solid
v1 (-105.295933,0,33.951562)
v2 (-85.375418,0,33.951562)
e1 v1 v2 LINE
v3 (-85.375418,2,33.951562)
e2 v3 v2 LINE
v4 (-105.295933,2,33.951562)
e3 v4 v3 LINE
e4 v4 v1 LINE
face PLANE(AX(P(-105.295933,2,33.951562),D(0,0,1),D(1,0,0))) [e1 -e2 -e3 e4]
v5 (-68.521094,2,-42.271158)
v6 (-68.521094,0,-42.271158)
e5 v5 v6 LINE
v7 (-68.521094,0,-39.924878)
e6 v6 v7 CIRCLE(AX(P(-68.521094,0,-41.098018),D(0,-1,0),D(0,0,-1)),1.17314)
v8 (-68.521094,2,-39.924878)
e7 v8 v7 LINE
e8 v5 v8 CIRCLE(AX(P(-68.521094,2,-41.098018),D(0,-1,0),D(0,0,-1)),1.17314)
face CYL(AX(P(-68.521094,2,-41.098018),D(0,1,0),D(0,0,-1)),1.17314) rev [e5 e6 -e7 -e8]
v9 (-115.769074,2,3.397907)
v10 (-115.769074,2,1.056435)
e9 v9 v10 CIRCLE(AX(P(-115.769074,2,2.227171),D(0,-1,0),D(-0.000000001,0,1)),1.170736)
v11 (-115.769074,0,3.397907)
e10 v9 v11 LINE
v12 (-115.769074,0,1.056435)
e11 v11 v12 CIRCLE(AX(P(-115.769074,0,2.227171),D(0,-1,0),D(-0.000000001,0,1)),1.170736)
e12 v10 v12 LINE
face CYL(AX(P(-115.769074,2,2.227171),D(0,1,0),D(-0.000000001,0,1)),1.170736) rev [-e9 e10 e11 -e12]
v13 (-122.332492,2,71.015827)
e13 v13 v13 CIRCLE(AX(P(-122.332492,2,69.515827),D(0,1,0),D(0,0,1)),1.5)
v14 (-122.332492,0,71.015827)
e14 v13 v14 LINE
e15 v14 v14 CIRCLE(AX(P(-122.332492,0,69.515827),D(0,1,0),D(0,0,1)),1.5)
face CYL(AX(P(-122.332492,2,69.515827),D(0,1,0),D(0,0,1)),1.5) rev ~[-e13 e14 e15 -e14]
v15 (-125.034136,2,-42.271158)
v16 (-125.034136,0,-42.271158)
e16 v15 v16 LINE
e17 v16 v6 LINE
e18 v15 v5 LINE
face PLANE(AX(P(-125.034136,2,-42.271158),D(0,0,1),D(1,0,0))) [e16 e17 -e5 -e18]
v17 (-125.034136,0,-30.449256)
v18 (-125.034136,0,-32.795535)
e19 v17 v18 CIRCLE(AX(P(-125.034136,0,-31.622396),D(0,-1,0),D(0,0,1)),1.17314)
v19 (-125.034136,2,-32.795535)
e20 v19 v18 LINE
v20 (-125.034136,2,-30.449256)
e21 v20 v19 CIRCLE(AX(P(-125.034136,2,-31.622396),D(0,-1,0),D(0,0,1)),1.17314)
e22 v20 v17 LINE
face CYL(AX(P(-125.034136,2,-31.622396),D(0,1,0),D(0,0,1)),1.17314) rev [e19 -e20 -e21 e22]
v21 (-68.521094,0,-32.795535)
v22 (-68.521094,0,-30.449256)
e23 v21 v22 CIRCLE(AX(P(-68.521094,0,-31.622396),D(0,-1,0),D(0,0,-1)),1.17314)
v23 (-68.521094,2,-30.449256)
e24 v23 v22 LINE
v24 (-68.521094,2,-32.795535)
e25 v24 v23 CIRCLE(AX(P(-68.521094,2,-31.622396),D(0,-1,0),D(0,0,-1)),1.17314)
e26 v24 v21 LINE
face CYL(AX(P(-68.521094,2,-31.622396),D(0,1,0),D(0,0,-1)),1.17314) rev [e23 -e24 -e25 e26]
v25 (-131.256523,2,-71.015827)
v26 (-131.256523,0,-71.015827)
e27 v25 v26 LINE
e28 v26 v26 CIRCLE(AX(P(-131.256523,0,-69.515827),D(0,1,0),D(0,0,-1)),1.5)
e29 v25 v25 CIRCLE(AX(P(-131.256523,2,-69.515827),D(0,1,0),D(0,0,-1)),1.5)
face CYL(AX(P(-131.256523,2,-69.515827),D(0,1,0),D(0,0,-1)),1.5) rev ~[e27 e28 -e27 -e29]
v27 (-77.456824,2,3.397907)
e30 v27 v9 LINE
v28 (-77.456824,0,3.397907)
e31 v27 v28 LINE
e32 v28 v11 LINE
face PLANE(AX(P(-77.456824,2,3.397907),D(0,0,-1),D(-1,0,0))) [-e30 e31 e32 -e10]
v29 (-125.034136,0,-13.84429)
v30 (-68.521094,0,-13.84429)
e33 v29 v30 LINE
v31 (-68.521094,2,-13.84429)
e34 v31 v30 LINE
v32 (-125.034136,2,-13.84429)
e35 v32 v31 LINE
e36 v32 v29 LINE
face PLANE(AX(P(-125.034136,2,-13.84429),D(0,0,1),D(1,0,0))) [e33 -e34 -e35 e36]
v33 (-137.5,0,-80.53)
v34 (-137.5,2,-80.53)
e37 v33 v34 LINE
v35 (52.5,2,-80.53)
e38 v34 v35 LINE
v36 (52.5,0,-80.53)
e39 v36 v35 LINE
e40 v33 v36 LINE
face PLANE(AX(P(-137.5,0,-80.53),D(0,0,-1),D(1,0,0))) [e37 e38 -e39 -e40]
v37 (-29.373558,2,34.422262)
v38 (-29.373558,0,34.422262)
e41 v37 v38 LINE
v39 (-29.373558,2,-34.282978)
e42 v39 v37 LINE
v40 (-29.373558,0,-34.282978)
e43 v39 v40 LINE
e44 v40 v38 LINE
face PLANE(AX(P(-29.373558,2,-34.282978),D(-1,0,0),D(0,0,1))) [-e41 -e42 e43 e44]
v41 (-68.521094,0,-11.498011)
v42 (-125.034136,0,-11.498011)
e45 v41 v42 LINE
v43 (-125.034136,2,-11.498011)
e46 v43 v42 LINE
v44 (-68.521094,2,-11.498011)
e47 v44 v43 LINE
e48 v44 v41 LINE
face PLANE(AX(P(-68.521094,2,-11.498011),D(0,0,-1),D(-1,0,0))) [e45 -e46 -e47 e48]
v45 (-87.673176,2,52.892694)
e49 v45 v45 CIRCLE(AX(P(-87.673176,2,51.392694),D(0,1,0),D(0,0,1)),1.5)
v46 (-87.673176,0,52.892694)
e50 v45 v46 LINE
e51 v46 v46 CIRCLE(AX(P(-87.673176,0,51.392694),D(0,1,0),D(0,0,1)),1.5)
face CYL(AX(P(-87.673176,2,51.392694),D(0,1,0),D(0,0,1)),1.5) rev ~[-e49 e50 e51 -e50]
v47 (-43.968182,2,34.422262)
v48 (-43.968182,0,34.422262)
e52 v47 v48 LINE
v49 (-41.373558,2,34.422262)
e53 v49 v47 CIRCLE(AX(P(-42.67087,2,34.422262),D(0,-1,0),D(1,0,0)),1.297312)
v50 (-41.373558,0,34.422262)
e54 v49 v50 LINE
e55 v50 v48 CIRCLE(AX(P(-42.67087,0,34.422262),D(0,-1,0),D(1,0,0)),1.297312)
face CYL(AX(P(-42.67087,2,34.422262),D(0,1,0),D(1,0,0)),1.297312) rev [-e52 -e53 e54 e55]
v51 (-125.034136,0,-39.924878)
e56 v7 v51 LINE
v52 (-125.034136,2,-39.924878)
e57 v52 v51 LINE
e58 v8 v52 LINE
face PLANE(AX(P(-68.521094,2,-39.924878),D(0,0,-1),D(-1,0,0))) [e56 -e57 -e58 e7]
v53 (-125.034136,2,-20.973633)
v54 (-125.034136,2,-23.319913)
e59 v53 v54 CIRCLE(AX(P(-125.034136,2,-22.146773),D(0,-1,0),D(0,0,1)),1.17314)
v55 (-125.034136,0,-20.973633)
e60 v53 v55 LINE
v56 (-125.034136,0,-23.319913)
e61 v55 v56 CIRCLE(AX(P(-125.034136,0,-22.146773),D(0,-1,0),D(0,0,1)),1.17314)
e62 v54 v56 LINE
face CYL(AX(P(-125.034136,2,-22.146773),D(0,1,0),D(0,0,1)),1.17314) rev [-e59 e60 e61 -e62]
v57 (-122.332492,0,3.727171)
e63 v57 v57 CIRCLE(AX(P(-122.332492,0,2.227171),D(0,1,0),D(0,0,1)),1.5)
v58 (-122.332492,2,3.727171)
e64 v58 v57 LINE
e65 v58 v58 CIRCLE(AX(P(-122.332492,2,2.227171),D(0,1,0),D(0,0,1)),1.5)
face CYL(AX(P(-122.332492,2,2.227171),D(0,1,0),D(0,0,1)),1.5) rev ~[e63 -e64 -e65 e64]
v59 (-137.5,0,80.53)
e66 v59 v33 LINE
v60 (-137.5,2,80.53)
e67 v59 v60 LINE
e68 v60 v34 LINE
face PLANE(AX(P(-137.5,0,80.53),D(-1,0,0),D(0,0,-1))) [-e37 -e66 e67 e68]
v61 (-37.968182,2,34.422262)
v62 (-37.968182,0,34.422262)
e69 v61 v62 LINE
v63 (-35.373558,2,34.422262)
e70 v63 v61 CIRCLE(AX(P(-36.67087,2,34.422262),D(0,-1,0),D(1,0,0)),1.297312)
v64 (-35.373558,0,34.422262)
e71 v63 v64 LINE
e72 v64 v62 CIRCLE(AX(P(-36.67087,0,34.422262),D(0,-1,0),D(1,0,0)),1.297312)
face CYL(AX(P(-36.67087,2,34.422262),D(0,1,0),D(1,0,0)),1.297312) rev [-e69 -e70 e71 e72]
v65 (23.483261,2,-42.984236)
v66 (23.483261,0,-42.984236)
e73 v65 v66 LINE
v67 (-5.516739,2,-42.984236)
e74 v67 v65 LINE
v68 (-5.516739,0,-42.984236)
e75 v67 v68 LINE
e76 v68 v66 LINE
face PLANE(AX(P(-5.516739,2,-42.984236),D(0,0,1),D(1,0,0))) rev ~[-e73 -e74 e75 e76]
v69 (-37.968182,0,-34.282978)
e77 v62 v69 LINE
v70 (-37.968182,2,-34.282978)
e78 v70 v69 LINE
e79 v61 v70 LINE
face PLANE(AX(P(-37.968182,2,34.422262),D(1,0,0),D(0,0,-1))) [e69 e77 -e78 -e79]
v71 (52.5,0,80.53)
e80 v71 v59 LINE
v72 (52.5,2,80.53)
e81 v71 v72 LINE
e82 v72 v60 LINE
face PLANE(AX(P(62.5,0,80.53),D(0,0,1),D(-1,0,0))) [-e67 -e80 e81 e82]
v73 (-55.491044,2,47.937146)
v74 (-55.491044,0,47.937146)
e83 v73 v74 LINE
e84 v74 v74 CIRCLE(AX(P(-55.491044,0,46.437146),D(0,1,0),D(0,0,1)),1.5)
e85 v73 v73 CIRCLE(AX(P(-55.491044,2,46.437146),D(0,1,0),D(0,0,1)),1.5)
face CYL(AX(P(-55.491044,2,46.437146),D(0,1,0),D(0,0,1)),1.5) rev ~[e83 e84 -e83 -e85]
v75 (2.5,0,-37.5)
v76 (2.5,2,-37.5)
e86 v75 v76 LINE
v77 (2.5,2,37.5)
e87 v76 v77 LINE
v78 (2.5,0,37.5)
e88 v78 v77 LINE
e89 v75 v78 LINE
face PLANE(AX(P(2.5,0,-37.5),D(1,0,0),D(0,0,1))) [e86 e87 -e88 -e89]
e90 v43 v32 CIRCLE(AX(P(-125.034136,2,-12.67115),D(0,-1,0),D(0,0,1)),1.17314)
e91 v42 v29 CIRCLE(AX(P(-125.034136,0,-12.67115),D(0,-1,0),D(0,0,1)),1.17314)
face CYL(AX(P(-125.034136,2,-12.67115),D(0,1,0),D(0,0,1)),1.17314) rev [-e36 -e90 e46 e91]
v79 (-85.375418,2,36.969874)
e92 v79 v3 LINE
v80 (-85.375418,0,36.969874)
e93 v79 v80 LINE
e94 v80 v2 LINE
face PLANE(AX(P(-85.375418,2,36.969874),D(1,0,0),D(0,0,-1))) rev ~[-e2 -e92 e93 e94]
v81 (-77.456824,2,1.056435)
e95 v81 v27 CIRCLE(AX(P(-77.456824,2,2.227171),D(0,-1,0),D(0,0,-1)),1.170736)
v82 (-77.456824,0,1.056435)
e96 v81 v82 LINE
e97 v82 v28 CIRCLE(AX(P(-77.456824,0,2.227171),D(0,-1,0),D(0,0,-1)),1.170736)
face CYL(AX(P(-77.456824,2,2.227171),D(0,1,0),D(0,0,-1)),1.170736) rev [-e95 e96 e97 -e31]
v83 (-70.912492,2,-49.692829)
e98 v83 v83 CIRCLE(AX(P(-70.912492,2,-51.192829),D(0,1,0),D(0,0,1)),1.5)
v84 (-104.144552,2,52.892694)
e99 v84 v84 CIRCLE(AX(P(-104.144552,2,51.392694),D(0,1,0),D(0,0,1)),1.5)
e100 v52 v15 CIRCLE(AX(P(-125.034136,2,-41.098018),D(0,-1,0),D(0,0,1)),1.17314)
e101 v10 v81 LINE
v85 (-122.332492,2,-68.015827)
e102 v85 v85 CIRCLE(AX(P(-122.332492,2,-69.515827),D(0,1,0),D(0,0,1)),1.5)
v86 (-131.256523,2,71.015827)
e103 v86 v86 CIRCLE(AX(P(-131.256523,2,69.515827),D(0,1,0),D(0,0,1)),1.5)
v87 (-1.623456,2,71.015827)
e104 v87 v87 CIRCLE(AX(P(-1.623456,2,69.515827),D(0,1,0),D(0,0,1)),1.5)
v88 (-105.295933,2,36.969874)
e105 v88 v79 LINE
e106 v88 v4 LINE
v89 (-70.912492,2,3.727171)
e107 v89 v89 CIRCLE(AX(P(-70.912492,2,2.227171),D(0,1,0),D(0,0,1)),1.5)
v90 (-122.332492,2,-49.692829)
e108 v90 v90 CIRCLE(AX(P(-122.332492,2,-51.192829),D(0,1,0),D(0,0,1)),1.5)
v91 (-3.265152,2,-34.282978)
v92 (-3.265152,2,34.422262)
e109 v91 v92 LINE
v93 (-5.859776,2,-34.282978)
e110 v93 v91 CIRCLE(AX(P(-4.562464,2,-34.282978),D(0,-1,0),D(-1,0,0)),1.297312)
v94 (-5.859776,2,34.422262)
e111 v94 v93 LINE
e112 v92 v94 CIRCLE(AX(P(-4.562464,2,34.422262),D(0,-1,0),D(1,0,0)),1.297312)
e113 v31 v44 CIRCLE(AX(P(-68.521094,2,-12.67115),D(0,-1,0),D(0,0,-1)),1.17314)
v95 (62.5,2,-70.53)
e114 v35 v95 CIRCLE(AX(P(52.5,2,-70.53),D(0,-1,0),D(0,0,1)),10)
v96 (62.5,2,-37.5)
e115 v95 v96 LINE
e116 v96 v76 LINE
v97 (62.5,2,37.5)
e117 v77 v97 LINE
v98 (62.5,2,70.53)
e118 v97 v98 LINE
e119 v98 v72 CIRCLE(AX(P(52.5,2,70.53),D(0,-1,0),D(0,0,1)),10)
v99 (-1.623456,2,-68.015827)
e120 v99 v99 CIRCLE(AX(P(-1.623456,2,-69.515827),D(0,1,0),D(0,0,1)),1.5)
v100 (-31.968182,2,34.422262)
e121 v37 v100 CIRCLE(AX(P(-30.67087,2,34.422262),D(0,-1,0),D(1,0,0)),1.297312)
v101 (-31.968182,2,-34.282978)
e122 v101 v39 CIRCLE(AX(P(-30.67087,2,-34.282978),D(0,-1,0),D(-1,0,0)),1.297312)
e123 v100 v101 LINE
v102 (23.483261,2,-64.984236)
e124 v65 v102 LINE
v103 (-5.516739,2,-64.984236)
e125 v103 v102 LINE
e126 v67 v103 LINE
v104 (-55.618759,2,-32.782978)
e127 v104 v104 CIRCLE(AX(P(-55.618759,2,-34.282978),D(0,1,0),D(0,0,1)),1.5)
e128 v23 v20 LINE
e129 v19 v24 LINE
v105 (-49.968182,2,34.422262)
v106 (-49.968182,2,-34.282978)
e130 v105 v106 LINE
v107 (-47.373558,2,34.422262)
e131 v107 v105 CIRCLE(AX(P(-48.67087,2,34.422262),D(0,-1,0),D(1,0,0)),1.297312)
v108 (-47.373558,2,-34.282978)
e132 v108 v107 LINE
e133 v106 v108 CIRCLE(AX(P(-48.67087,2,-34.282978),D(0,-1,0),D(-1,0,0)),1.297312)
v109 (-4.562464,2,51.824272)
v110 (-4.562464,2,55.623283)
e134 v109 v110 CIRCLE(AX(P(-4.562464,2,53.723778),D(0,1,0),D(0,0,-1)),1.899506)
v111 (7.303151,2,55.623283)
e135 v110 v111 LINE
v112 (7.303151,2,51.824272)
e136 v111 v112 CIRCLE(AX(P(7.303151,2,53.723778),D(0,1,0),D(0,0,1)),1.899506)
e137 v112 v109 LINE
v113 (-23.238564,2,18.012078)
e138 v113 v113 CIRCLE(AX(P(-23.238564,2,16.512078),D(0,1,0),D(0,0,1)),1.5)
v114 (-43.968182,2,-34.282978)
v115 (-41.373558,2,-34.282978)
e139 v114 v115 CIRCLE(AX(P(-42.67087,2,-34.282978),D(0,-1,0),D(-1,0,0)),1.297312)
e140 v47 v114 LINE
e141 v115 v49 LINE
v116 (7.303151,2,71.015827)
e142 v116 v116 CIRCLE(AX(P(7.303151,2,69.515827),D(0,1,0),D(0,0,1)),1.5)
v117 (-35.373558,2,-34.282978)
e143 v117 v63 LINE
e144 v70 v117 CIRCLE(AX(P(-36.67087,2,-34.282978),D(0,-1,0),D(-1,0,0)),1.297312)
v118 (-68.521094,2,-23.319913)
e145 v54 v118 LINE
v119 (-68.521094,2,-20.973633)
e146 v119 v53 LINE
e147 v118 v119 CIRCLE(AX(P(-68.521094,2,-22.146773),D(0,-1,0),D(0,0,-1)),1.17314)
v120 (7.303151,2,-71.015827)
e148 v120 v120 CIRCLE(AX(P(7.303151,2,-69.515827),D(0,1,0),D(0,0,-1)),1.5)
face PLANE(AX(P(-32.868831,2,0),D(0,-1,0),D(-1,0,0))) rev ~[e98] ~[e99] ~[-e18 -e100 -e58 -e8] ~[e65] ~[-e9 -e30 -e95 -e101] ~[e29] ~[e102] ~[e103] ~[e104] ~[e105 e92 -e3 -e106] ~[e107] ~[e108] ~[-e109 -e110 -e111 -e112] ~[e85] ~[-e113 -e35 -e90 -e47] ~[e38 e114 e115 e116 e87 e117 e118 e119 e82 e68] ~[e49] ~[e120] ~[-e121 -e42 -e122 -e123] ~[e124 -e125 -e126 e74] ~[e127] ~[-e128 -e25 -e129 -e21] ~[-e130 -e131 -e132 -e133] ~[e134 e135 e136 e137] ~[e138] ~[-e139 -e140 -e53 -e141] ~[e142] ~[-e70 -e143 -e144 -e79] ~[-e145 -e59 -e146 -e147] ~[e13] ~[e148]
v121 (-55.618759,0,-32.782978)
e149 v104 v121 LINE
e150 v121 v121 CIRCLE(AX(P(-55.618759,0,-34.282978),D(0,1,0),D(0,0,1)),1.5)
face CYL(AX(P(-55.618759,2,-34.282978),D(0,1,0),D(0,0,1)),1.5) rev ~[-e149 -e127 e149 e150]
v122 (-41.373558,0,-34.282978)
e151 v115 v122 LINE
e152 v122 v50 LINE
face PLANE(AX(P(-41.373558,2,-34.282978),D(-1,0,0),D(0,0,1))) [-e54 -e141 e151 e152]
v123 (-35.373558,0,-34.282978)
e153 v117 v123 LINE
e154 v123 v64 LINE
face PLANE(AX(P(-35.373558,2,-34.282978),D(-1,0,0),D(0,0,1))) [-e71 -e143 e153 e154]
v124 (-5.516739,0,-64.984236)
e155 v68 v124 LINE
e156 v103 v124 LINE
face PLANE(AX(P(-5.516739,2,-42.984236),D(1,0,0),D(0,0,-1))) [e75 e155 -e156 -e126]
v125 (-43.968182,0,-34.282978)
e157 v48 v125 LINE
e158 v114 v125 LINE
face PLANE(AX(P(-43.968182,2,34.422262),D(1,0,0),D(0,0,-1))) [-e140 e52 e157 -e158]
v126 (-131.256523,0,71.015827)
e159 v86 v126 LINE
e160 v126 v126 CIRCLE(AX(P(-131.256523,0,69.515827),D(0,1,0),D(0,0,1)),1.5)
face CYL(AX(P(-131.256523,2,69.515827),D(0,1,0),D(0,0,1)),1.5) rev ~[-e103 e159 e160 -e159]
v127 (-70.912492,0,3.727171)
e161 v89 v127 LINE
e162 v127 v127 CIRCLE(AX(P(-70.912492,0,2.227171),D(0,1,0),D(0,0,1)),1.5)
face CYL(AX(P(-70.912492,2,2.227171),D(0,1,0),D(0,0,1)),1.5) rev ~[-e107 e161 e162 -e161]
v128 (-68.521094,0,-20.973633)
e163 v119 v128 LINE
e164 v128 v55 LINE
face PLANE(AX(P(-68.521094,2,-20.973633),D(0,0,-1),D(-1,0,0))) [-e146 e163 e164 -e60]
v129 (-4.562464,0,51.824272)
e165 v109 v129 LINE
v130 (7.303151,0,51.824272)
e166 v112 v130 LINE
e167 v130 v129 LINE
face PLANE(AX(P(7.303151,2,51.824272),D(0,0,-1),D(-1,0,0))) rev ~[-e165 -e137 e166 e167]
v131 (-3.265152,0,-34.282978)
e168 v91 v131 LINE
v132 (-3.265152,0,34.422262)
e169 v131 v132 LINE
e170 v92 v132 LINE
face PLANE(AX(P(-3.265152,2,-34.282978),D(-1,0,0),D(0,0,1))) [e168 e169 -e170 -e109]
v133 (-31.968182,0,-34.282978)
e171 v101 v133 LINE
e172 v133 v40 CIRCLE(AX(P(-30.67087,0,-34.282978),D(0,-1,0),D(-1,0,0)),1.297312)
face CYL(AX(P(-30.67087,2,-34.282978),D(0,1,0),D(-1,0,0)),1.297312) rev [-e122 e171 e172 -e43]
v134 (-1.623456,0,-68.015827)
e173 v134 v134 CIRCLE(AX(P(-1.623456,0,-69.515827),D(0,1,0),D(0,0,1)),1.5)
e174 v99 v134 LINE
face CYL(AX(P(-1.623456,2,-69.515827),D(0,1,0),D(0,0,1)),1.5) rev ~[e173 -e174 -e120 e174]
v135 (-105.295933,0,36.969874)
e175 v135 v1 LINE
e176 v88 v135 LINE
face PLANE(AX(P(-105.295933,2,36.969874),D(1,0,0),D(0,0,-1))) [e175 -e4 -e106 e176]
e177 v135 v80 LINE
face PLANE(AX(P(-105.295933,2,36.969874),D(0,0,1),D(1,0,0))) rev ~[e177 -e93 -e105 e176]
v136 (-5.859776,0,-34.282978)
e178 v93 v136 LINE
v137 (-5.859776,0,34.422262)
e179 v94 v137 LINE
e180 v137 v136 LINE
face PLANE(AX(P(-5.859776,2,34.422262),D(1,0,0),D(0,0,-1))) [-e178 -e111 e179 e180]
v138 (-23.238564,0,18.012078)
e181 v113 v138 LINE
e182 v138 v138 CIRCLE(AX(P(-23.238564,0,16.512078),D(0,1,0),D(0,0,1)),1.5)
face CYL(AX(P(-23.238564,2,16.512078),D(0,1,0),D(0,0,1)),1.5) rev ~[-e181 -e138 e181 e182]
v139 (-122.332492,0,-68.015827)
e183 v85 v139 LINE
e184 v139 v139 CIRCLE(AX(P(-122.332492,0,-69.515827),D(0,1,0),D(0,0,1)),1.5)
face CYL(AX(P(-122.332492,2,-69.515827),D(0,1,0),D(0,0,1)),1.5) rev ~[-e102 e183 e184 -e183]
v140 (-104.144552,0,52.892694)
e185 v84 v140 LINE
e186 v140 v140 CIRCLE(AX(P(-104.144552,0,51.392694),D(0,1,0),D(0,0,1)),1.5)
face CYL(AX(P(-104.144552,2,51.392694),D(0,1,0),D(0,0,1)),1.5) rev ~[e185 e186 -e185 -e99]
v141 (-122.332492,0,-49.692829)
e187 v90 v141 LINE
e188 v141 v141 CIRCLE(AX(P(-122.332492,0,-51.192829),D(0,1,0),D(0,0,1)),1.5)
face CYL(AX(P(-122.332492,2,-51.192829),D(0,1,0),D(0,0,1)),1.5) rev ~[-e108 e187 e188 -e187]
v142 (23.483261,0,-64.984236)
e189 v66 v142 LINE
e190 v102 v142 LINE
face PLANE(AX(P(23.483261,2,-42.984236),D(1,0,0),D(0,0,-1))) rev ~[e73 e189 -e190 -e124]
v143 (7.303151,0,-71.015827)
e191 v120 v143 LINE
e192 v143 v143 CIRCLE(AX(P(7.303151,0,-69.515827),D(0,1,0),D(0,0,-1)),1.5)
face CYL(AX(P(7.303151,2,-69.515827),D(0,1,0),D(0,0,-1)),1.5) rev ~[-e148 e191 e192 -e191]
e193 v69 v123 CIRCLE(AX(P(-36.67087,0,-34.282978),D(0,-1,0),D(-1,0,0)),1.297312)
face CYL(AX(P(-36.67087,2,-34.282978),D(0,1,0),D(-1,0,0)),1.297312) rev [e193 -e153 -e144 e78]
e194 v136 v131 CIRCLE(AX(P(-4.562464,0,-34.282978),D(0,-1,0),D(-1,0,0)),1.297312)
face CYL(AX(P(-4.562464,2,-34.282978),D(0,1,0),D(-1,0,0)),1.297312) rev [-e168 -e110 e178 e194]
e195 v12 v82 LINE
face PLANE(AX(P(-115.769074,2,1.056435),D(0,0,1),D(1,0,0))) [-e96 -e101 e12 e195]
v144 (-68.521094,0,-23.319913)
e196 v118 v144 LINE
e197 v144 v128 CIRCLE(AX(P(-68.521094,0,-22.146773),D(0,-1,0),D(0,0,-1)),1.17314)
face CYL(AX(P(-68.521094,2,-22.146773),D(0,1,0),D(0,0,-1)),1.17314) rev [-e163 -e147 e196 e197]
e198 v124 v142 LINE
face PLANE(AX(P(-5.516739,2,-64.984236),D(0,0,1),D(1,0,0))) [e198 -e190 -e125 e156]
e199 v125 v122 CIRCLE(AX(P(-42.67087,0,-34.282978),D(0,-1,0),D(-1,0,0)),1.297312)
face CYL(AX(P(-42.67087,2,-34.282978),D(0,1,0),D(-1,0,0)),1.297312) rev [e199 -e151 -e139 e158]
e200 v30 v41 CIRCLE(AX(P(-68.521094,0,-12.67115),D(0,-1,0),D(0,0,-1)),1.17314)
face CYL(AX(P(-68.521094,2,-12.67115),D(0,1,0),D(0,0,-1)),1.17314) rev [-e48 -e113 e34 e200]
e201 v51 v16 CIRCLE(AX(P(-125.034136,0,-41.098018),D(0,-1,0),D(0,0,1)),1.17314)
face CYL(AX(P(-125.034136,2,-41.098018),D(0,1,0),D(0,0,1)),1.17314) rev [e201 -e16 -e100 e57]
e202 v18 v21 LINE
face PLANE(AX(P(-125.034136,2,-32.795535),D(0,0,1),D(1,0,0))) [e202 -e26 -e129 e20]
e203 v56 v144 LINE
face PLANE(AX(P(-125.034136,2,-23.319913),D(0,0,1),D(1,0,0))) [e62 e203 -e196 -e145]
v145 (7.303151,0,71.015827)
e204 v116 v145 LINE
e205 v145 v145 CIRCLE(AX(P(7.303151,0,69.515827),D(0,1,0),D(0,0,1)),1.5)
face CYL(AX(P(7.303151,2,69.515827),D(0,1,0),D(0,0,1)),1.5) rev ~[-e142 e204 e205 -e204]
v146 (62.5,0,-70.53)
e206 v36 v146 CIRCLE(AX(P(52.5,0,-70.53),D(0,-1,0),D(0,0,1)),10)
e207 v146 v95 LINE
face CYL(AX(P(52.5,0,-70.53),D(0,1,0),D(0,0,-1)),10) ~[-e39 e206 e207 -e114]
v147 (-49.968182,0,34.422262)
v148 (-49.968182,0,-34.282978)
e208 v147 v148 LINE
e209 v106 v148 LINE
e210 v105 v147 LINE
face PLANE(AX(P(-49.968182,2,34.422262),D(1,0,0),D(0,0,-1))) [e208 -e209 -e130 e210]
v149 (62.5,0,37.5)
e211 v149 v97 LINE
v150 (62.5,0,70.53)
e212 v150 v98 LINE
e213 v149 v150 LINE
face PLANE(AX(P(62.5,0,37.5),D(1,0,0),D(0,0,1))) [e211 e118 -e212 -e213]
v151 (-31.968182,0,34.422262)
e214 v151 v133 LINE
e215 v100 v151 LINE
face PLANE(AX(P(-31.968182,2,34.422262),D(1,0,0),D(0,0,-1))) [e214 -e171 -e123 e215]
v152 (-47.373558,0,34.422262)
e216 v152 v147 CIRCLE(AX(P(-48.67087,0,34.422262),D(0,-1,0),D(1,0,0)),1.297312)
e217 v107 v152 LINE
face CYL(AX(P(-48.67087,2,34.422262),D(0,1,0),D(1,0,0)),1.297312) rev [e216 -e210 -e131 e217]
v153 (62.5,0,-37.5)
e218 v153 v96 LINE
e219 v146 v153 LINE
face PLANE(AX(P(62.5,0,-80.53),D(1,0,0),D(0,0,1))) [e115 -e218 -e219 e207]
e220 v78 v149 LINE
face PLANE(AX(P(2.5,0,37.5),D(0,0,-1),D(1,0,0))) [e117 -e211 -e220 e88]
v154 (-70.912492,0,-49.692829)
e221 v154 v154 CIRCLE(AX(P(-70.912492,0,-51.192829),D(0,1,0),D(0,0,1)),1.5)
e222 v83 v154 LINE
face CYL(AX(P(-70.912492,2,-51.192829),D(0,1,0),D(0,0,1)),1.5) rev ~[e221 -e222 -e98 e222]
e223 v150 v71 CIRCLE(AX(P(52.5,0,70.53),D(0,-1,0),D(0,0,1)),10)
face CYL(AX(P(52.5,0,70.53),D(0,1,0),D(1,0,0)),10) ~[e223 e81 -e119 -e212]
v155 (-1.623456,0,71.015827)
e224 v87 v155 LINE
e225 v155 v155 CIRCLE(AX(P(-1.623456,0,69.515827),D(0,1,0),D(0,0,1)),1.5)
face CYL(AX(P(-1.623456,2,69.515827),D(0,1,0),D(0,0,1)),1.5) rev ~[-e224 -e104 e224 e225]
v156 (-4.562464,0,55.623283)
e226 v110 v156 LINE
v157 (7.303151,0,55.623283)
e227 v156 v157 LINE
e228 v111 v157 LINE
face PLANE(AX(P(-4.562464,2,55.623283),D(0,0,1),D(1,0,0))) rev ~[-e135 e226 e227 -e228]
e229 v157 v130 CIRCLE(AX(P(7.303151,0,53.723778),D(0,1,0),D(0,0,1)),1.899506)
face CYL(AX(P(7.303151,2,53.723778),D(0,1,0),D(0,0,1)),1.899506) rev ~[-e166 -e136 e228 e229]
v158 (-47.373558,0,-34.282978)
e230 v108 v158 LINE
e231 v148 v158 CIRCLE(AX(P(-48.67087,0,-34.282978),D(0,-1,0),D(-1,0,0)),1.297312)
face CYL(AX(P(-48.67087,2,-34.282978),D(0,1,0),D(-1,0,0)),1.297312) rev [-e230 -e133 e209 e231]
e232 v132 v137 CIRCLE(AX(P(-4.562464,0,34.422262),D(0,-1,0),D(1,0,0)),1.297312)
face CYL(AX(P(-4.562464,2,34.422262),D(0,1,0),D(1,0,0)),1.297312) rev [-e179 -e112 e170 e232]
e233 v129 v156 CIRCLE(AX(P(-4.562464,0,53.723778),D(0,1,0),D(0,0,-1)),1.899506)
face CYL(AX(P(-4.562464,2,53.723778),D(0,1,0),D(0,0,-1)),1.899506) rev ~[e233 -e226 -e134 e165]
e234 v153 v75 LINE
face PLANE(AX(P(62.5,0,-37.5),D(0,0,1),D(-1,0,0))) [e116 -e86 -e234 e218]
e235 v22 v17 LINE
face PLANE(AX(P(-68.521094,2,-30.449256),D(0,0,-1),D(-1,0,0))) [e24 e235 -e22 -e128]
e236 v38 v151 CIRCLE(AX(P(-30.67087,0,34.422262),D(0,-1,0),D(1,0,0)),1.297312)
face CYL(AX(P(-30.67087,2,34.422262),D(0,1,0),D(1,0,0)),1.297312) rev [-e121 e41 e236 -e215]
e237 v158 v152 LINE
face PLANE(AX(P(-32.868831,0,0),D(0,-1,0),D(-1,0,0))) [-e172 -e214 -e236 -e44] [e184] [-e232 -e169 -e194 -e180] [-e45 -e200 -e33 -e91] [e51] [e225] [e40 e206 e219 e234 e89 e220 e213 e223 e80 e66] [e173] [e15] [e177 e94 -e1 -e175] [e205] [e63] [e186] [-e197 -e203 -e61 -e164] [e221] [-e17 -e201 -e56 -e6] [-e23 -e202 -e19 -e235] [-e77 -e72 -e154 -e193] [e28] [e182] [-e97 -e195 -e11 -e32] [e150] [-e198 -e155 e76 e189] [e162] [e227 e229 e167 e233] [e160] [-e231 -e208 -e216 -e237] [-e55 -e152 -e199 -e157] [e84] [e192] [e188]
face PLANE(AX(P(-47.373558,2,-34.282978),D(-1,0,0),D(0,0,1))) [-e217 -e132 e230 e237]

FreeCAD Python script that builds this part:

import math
import FreeCAD as App
import Part
import Sketcher
from FreeCAD import Vector
Q = App.Units.Quantity


def edges_at(feature, points):
    """Names of the edges that pass closest to the given points."""
    edges = feature.Shape.Edges
    near = lambda p: min(range(len(edges)), key=lambda i: edges[i].distToShape(Part.Vertex(*p))[0])
    return sorted({f"Edge{near(p) + 1}" for p in points})


def add_polygon(sketch, points):
    """Adds a closed chain of lines whose ends are joined by coincident constraints."""
    first, n = sketch.GeometryCount, len(points)
    for a, b in zip(points, points[1:] + points[:1]):
        sketch.addGeometry(Part.LineSegment(App.Vector(*a, 0), App.Vector(*b, 0)), False)
    for i in range(n):
        sketch.addConstraint(Sketcher.Constraint("Coincident", first + i, 2, first + (i + 1) % n, 1))

doc = App.newDocument("Part")
params = doc.addObject("Spreadsheet::Sheet", "Params")
for row, (alias, value) in enumerate([
    ("sketch1_width", "60 mm"),
    ("sketch1_width2", "200 mm"),
    ("sketch1_height", "75 mm"),
    ("sketch1_height2", "43.03 mm"),
    ("pad1_length", "2 mm"),
    ("sketch2_diameter", "3 mm"),
    ("sketch2_width", "29 mm"),
    ("sketch2_height", "22 mm"),
    ("pocket1_length", "2 mm"),
    ("fillet_radius", "10 mm"),
], start=1):
    params.set(f"A{row}", alias)
    params.set(f"B{row}", "=" + value)
    params.setAlias(f"B{row}", alias)

body = doc.addObject("PartDesign::Body", "Body")

# Sketch on XZ plane
sketch1 = body.newObject("Sketcher::SketchObject", "Sketch")
sketch1.AttachmentSupport = (doc.getObject("XZ_Plane"), [""])
sketch1.MapMode = "FlatFace"
add_polygon(sketch1, [(62, 81), (62, 38), (2, 38), (2, -38), (62, -38), (62, -81), (-138, -81), (-138, 81)])  # lines 0-7
sketch1.addConstraint(Sketcher.Constraint("Vertical", 0))
sketch1.addConstraint(Sketcher.Constraint("Horizontal", 1))
sketch1.addConstraint(Sketcher.Constraint("Vertical", 2))
sketch1.addConstraint(Sketcher.Constraint("Horizontal", 3))
sketch1.addConstraint(Sketcher.Constraint("Vertical", 4))
sketch1.addConstraint(Sketcher.Constraint("Horizontal", 5))
sketch1.addConstraint(Sketcher.Constraint("Vertical", 6))
sketch1.addConstraint(Sketcher.Constraint("Horizontal", 7))
sketch1.addConstraint(Sketcher.Constraint("Symmetric", 0, 2, 3, 2, -1))
sketch1.addConstraint(Sketcher.Constraint("Equal", 0, 4))
sketch1.addConstraint(Sketcher.Constraint("DistanceX", 1, 2, 1, 1, Q("60 mm")))
sketch1.addConstraint(Sketcher.Constraint("DistanceX", 5, 2, 5, 1, Q("200 mm")))
sketch1.addConstraint(Sketcher.Constraint("DistanceY", 2, 2, 2, 1, Q("75 mm")))
sketch1.addConstraint(Sketcher.Constraint("DistanceY", 0, 2, 0, 1, Q("43.03 mm")))
sketch1.addConstraint(Sketcher.Constraint("DistanceX", -1, 1, 0, 2, Q("62.5 mm")))
sketch1.setExpression("Constraints[18]", "Params.sketch1_width")
sketch1.setExpression("Constraints[19]", "Params.sketch1_width2")
sketch1.setExpression("Constraints[20]", "Params.sketch1_height")
sketch1.setExpression("Constraints[21]", "Params.sketch1_height2")
pad1 = body.newObject("PartDesign::Pad", "Pad")
pad1.Profile = sketch1
pad1.setExpression("Length", "Params.pad1_length")
pad1.Reversed = True

# Sketch on XZ plane
sketch2 = body.newObject("Sketcher::SketchObject", "Sketch001")
sketch2.AttachmentSupport = (doc.getObject("XZ_Plane"), [""])
sketch2.MapMode = "FlatFace"
sketch2.AttachmentOffset = App.Placement(Vector(0, 0, -2), App.Rotation())
sketch2.addGeometry(Part.Circle(Vector(-131.3, 69.5, 0), Vector(0, 0, 1), 1.5), False)  # 0
sketch2.addGeometry(Part.Circle(Vector(7.3, 69.5, 0), Vector(0, 0, 1), 1.5), False)  # 1
sketch2.addGeometry(Part.Circle(Vector(-131.3, -69.5, 0), Vector(0, 0, 1), 1.5), False)  # 2
sketch2.addGeometry(Part.Circle(Vector(7.3, -69.5, 0), Vector(0, 0, 1), 1.5), False)  # 3
sketch2.addGeometry(Part.Circle(Vector(-122.3, 69.5, 0), Vector(0, 0, 1), 1.5), False)  # 4
sketch2.addGeometry(Part.Circle(Vector(-1.6, 69.5, 0), Vector(0, 0, 1), 1.5), False)  # 5
sketch2.addGeometry(Part.Circle(Vector(-1.6, -69.5, 0), Vector(0, 0, 1), 1.5), False)  # 6
sketch2.addGeometry(Part.Circle(Vector(-122.3, -69.5, 0), Vector(0, 0, 1), 1.5), False)  # 7
sketch2.addGeometry(Part.Circle(Vector(-23.2, 16.5, 0), Vector(0, 0, 1), 1.5), False)  # 8
sketch2.addGeometry(Part.Circle(Vector(-55.5, 46.4, 0), Vector(0, 0, 1), 1.5), False)  # 9
sketch2.addGeometry(Part.Circle(Vector(-55.6, -34.3, 0), Vector(0, 0, 1), 1.5), False)  # 10
sketch2.addGeometry(Part.Circle(Vector(-70.9, -51.2, 0), Vector(0, 0, 1), 1.5), False)  # 11
sketch2.addGeometry(Part.Circle(Vector(-122.3, -51.2, 0), Vector(0, 0, 1), 1.5), False)  # 12
sketch2.addGeometry(Part.Circle(Vector(-122.3, 2.2, 0), Vector(0, 0, 1), 1.5), False)  # 13
sketch2.addGeometry(Part.Circle(Vector(-70.9, 2.2, 0), Vector(0, 0, 1), 1.5), False)  # 14
sketch2.addGeometry(Part.Circle(Vector(-104.1, 51.4, 0), Vector(0, 0, 1), 1.5), False)  # 15
sketch2.addGeometry(Part.Circle(Vector(-87.7, 51.4, 0), Vector(0, 0, 1), 1.5), False)  # 16
sketch2.addGeometry(Part.LineSegment(Vector(-3.3, 34.4, 0), Vector(-3.3, -34.3, 0)), False)  # 17
sketch2.addGeometry(Part.ArcOfCircle(Part.Circle(Vector(-4.6, -34.3, 0), Vector(0, 0, 1), 1.3), math.radians(-180), math.radians(0)), False)  # 18
sketch2.addGeometry(Part.LineSegment(Vector(-5.9, -34.3, 0), Vector(-5.9, 34.4, 0)), False)  # 19
sketch2.addGeometry(Part.ArcOfCircle(Part.Circle(Vector(-4.6, 34.4, 0), Vector(0, 0, 1), 1.3), math.radians(0), math.radians(180)), False)  # 20
sketch2.addGeometry(Part.LineSegment(Vector(-29.4, 34.4, 0), Vector(-29.4, -34.3, 0)), False)  # 21
sketch2.addGeometry(Part.ArcOfCircle(Part.Circle(Vector(-30.7, -34.3, 0), Vector(0, 0, 1), 1.3), math.radians(-180), math.radians(0)), False)  # 22
sketch2.addGeometry(Part.LineSegment(Vector(-32, -34.3, 0), Vector(-32, 34.4, 0)), False)  # 23
sketch2.addGeometry(Part.ArcOfCircle(Part.Circle(Vector(-30.7, 34.4, 0), Vector(0, 0, 1), 1.3), math.radians(0), math.radians(180)), False)  # 24
sketch2.addGeometry(Part.LineSegment(Vector(-35.4, 34.4, 0), Vector(-35.4, -34.3, 0)), False)  # 25
sketch2.addGeometry(Part.ArcOfCircle(Part.Circle(Vector(-36.7, -34.3, 0), Vector(0, 0, 1), 1.3), math.radians(-180), math.radians(0)), False)  # 26
sketch2.addGeometry(Part.LineSegment(Vector(-38, -34.3, 0), Vector(-38, 34.4, 0)), False)  # 27
sketch2.addGeometry(Part.ArcOfCircle(Part.Circle(Vector(-36.7, 34.4, 0), Vector(0, 0, 1), 1.3), math.radians(0), math.radians(180)), False)  # 28
sketch2.addGeometry(Part.LineSegment(Vector(-41.4, 34.4, 0), Vector(-41.4, -34.3, 0)), False)  # 29
sketch2.addGeometry(Part.ArcOfCircle(Part.Circle(Vector(-42.7, -34.3, 0), Vector(0, 0, 1), 1.3), math.radians(-180), math.radians(0)), False)  # 30
sketch2.addGeometry(Part.LineSegment(Vector(-44, -34.3, 0), Vector(-44, 34.4, 0)), False)  # 31
sketch2.addGeometry(Part.ArcOfCircle(Part.Circle(Vector(-42.7, 34.4, 0), Vector(0, 0, 1), 1.3), math.radians(0), math.radians(180)), False)  # 32
sketch2.addGeometry(Part.LineSegment(Vector(-47.4, 34.4, 0), Vector(-47.4, -34.3, 0)), False)  # 33
sketch2.addGeometry(Part.ArcOfCircle(Part.Circle(Vector(-48.7, -34.3, 0), Vector(0, 0, 1), 1.3), math.radians(-180), math.radians(0)), False)  # 34
sketch2.addGeometry(Part.LineSegment(Vector(-50, -34.3, 0), Vector(-50, 34.4, 0)), False)  # 35
sketch2.addGeometry(Part.ArcOfCircle(Part.Circle(Vector(-48.7, 34.4, 0), Vector(0, 0, 1), 1.3), math.radians(0), math.radians(180)), False)  # 36
sketch2.addGeometry(Part.LineSegment(Vector(-77.5, 1.1, 0), Vector(-115.8, 1.1, 0)), False)  # 37
sketch2.addGeometry(Part.ArcOfCircle(Part.Circle(Vector(-115.8, 2.2, 0), Vector(0, 0, 1), 1.2), math.radians(90), math.radians(270)), False)  # 38
sketch2.addGeometry(Part.LineSegment(Vector(-115.8, 3.4, 0), Vector(-77.5, 3.4, 0)), False)  # 39
sketch2.addGeometry(Part.ArcOfCircle(Part.Circle(Vector(-77.5, 2.2, 0), Vector(0, 0, 1), 1.2), math.radians(-90), math.radians(90)), False)  # 40
add_polygon(sketch2, [(-105.3, 34), (-105.3, 37), (-85.4, 37), (-85.4, 34)])  # lines 41-44
sketch2.addGeometry(Part.LineSegment(Vector(-125, -39.9, 0), Vector(-68.5, -39.9, 0)), False)  # 45
sketch2.addGeometry(Part.ArcOfCircle(Part.Circle(Vector(-68.5, -41.1, 0), Vector(0, 0, 1), 1.2), math.radians(-90), math.radians(90)), False)  # 46
sketch2.addGeometry(Part.LineSegment(Vector(-68.5, -42.3, 0), Vector(-125, -42.3, 0)), False)  # 47
sketch2.addGeometry(Part.ArcOfCircle(Part.Circle(Vector(-125, -41.1, 0), Vector(0, 0, 1), 1.2), math.radians(90), math.radians(270)), False)  # 48
sketch2.addGeometry(Part.LineSegment(Vector(-125, -30.4, 0), Vector(-68.5, -30.4, 0)), False)  # 49
sketch2.addGeometry(Part.ArcOfCircle(Part.Circle(Vector(-68.5, -31.6, 0), Vector(0, 0, 1), 1.2), math.radians(-90), math.radians(90)), False)  # 50
sketch2.addGeometry(Part.LineSegment(Vector(-68.5, -32.8, 0), Vector(-125, -32.8, 0)), False)  # 51
sketch2.addGeometry(Part.ArcOfCircle(Part.Circle(Vector(-125, -31.6, 0), Vector(0, 0, 1), 1.2), math.radians(90), math.radians(270)), False)  # 52
sketch2.addGeometry(Part.LineSegment(Vector(-125, -21, 0), Vector(-68.5, -21, 0)), False)  # 53
sketch2.addGeometry(Part.ArcOfCircle(Part.Circle(Vector(-68.5, -22.1, 0), Vector(0, 0, 1), 1.2), math.radians(-90), math.radians(90)), False)  # 54
sketch2.addGeometry(Part.LineSegment(Vector(-68.5, -23.3, 0), Vector(-125, -23.3, 0)), False)  # 55
sketch2.addGeometry(Part.ArcOfCircle(Part.Circle(Vector(-125, -22.1, 0), Vector(0, 0, 1), 1.2), math.radians(90), math.radians(270)), False)  # 56
sketch2.addGeometry(Part.LineSegment(Vector(-125, -11.5, 0), Vector(-68.5, -11.5, 0)), False)  # 57
sketch2.addGeometry(Part.ArcOfCircle(Part.Circle(Vector(-68.5, -12.7, 0), Vector(0, 0, 1), 1.2), math.radians(-90), math.radians(90)), False)  # 58
sketch2.addGeometry(Part.LineSegment(Vector(-68.5, -13.8, 0), Vector(-125, -13.8, 0)), False)  # 59
sketch2.addGeometry(Part.ArcOfCircle(Part.Circle(Vector(-125, -12.7, 0), Vector(0, 0, 1), 1.2), math.radians(90), math.radians(270)), False)  # 60
add_polygon(sketch2, [(-5.5, -65), (-5.5, -43), (23.5, -43), (23.5, -65)])  # lines 61-64
sketch2.addGeometry(Part.LineSegment(Vector(7.3, 51.8, 0), Vector(-4.6, 51.8, 0)), False)  # 65
sketch2.addGeometry(Part.ArcOfCircle(Part.Circle(Vector(-4.6, 53.7, 0), Vector(0, 0, 1), 1.9), math.radians(90), math.radians(270)), False)  # 66
sketch2.addGeometry(Part.LineSegment(Vector(-4.6, 55.6, 0), Vector(7.3, 55.6, 0)), False)  # 67
sketch2.addGeometry(Part.ArcOfCircle(Part.Circle(Vector(7.3, 53.7, 0), Vector(0, 0, 1), 1.9), math.radians(-90), math.radians(90)), False)  # 68
sketch2.addConstraint(Sketcher.Constraint("Tangent", 17, 2, 18, 2))
sketch2.addConstraint(Sketcher.Constraint("Tangent", 18, 1, 19, 1))
sketch2.addConstraint(Sketcher.Constraint("Tangent", 19, 2, 20, 2))
sketch2.addConstraint(Sketcher.Constraint("Tangent", 20, 1, 17, 1))
sketch2.addConstraint(Sketcher.Constraint("Tangent", 21, 2, 22, 2))
sketch2.addConstraint(Sketcher.Constraint("Tangent", 22, 1, 23, 1))
sketch2.addConstraint(Sketcher.Constraint("Tangent", 23, 2, 24, 2))
sketch2.addConstraint(Sketcher.Constraint("Tangent", 24, 1, 21, 1))
sketch2.addConstraint(Sketcher.Constraint("Tangent", 25, 2, 26, 2))
sketch2.addConstraint(Sketcher.Constraint("Tangent", 26, 1, 27, 1))
sketch2.addConstraint(Sketcher.Constraint("Tangent", 27, 2, 28, 2))
sketch2.addConstraint(Sketcher.Constraint("Tangent", 28, 1, 25, 1))
sketch2.addConstraint(Sketcher.Constraint("Tangent", 29, 2, 30, 2))
sketch2.addConstraint(Sketcher.Constraint("Tangent", 30, 1, 31, 1))
sketch2.addConstraint(Sketcher.Constraint("Tangent", 31, 2, 32, 2))
sketch2.addConstraint(Sketcher.Constraint("Tangent", 32, 1, 29, 1))
sketch2.addConstraint(Sketcher.Constraint("Tangent", 33, 2, 34, 2))
sketch2.addConstraint(Sketcher.Constraint("Tangent", 34, 1, 35, 1))
sketch2.addConstraint(Sketcher.Constraint("Tangent", 35, 2, 36, 2))
sketch2.addConstraint(Sketcher.Constraint("Tangent", 36, 1, 33, 1))
sketch2.addConstraint(Sketcher.Constraint("Tangent", 37, 2, 38, 2))
sketch2.addConstraint(Sketcher.Constraint("Tangent", 38, 1, 39, 1))
sketch2.addConstraint(Sketcher.Constraint("Tangent", 39, 2, 40, 2))
sketch2.addConstraint(Sketcher.Constraint("Tangent", 40, 1, 37, 1))
sketch2.addConstraint(Sketcher.Constraint("Tangent", 45, 2, 46, 2))
sketch2.addConstraint(Sketcher.Constraint("Tangent", 46, 1, 47, 1))
sketch2.addConstraint(Sketcher.Constraint("Tangent", 47, 2, 48, 2))
sketch2.addConstraint(Sketcher.Constraint("Tangent", 48, 1, 45, 1))
sketch2.addConstraint(Sketcher.Constraint("Tangent", 49, 2, 50, 2))
sketch2.addConstraint(Sketcher.Constraint("Tangent", 50, 1, 51, 1))
sketch2.addConstraint(Sketcher.Constraint("Tangent", 51, 2, 52, 2))
sketch2.addConstraint(Sketcher.Constraint("Tangent", 52, 1, 49, 1))
sketch2.addConstraint(Sketcher.Constraint("Tangent", 53, 2, 54, 2))
sketch2.addConstraint(Sketcher.Constraint("Tangent", 54, 1, 55, 1))
sketch2.addConstraint(Sketcher.Constraint("Tangent", 55, 2, 56, 2))
sketch2.addConstraint(Sketcher.Constraint("Tangent", 56, 1, 53, 1))
sketch2.addConstraint(Sketcher.Constraint("Tangent", 57, 2, 58, 2))
sketch2.addConstraint(Sketcher.Constraint("Tangent", 58, 1, 59, 1))
sketch2.addConstraint(Sketcher.Constraint("Tangent", 59, 2, 60, 2))
sketch2.addConstraint(Sketcher.Constraint("Tangent", 60, 1, 57, 1))
sketch2.addConstraint(Sketcher.Constraint("Tangent", 65, 2, 66, 2))
sketch2.addConstraint(Sketcher.Constraint("Tangent", 66, 1, 67, 1))
sketch2.addConstraint(Sketcher.Constraint("Tangent", 67, 2, 68, 2))
sketch2.addConstraint(Sketcher.Constraint("Tangent", 68, 1, 65, 1))
sketch2.addConstraint(Sketcher.Constraint("Vertical", 17))
sketch2.addConstraint(Sketcher.Constraint("Vertical", 19))
sketch2.addConstraint(Sketcher.Constraint("Vertical", 21))
sketch2.addConstraint(Sketcher.Constraint("Vertical", 23))
sketch2.addConstraint(Sketcher.Constraint("Vertical", 25))
sketch2.addConstraint(Sketcher.Constraint("Vertical", 27))
sketch2.addConstraint(Sketcher.Constraint("Vertical", 29))
sketch2.addConstraint(Sketcher.Constraint("Vertical", 31))
sketch2.addConstraint(Sketcher.Constraint("Vertical", 33))
sketch2.addConstraint(Sketcher.Constraint("Vertical", 35))
sketch2.addConstraint(Sketcher.Constraint("Horizontal", 37))
sketch2.addConstraint(Sketcher.Constraint("Horizontal", 39))
sketch2.addConstraint(Sketcher.Constraint("Vertical", 41))
sketch2.addConstraint(Sketcher.Constraint("Horizontal", 42))
sketch2.addConstraint(Sketcher.Constraint("Vertical", 43))
sketch2.addConstraint(Sketcher.Constraint("Horizontal", 44))
sketch2.addConstraint(Sketcher.Constraint("Horizontal", 45))
sketch2.addConstraint(Sketcher.Constraint("Horizontal", 47))
sketch2.addConstraint(Sketcher.Constraint("Horizontal", 49))
sketch2.addConstraint(Sketcher.Constraint("Horizontal", 51))
sketch2.addConstraint(Sketcher.Constraint("Horizontal", 53))
sketch2.addConstraint(Sketcher.Constraint("Horizontal", 55))
sketch2.addConstraint(Sketcher.Constraint("Horizontal", 57))
sketch2.addConstraint(Sketcher.Constraint("Horizontal", 59))
sketch2.addConstraint(Sketcher.Constraint("Vertical", 61))
sketch2.addConstraint(Sketcher.Constraint("Horizontal", 62))
sketch2.addConstraint(Sketcher.Constraint("Vertical", 63))
sketch2.addConstraint(Sketcher.Constraint("Horizontal", 64))
sketch2.addConstraint(Sketcher.Constraint("Horizontal", 65))
sketch2.addConstraint(Sketcher.Constraint("Horizontal", 67))
sketch2.addConstraint(Sketcher.Constraint("Equal", 0, 1))
sketch2.addConstraint(Sketcher.Constraint("Equal", 1, 2))
sketch2.addConstraint(Sketcher.Constraint("Equal", 2, 3))
sketch2.addConstraint(Sketcher.Constraint("Equal", 3, 4))
sketch2.addConstraint(Sketcher.Constraint("Equal", 4, 5))
sketch2.addConstraint(Sketcher.Constraint("Equal", 5, 6))
sketch2.addConstraint(Sketcher.Constraint("Equal", 6, 7))
sketch2.addConstraint(Sketcher.Constraint("Equal", 7, 8))
sketch2.addConstraint(Sketcher.Constraint("Equal", 8, 9))
sketch2.addConstraint(Sketcher.Constraint("Equal", 9, 10))
sketch2.addConstraint(Sketcher.Constraint("Equal", 10, 11))
sketch2.addConstraint(Sketcher.Constraint("Equal", 11, 12))
sketch2.addConstraint(Sketcher.Constraint("Equal", 12, 13))
sketch2.addConstraint(Sketcher.Constraint("Equal", 13, 14))
sketch2.addConstraint(Sketcher.Constraint("Equal", 14, 15))
sketch2.addConstraint(Sketcher.Constraint("Equal", 15, 16))
sketch2.addConstraint(Sketcher.Constraint("Equal", 20, 22))
sketch2.addConstraint(Sketcher.Constraint("Equal", 24, 26))
sketch2.addConstraint(Sketcher.Constraint("Equal", 28, 30))
sketch2.addConstraint(Sketcher.Constraint("Equal", 32, 34))
sketch2.addConstraint(Sketcher.Constraint("Equal", 48, 50))
sketch2.addConstraint(Sketcher.Constraint("Equal", 52, 54))
sketch2.addConstraint(Sketcher.Constraint("Equal", 56, 58))
sketch2.addConstraint(Sketcher.Constraint("Symmetric", 0, 3, 2, 3, -1))
sketch2.addConstraint(Sketcher.Constraint("Symmetric", 1, 3, 3, 3, -1))
sketch2.addConstraint(Sketcher.Constraint("Symmetric", 5, 3, 6, 3, -1))
sketch2.addConstraint(Sketcher.Constraint("Symmetric", 4, 3, 7, 3, -1))
sketch2.addConstraint(Sketcher.Constraint("Horizontal", 0, 3, 1, 3))
sketch2.addConstraint(Sketcher.Constraint("Horizontal", 1, 3, 4, 3))
sketch2.addConstraint(Sketcher.Constraint("Horizontal", 4, 3, 5, 3))
sketch2.addConstraint(Sketcher.Constraint("Horizontal", 11, 3, 12, 3))
sketch2.addConstraint(Sketcher.Constraint("Horizontal", 13, 3, 14, 3))
sketch2.addConstraint(Sketcher.Constraint("Horizontal", 15, 3, 16, 3))
sketch2.addConstraint(Sketcher.Constraint("Horizontal", 10, 3, 18, 3))
sketch2.addConstraint(Sketcher.Constraint("Horizontal", 18, 3, 22, 3))
sketch2.addConstraint(Sketcher.Constraint("Horizontal", 20, 3, 24, 3))
sketch2.addConstraint(Sketcher.Constraint("Horizontal", 22, 3, 26, 3))
sketch2.addConstraint(Sketcher.Constraint("Horizontal", 24, 3, 28, 3))
sketch2.addConstraint(Sketcher.Constraint("Horizontal", 26, 3, 30, 3))
sketch2.addConstraint(Sketcher.Constraint("Horizontal", 28, 3, 32, 3))
sketch2.addConstraint(Sketcher.Constraint("Horizontal", 30, 3, 34, 3))
sketch2.addConstraint(Sketcher.Constraint("Horizontal", 32, 3, 36, 3))
sketch2.addConstraint(Sketcher.Constraint("Horizontal", 14, 3, 38, 3))
sketch2.addConstraint(Sketcher.Constraint("Vertical", 7, 3, 12, 3))
sketch2.addConstraint(Sketcher.Constraint("Vertical", 12, 3, 13, 3))
sketch2.addConstraint(Sketcher.Constraint("Vertical", 11, 3, 14, 3))
sketch2.addConstraint(Sketcher.Constraint("Vertical", 46, 3, 50, 3))
sketch2.addConstraint(Sketcher.Constraint("Vertical", 48, 3, 52, 3))
sketch2.addConstraint(Sketcher.Constraint("Vertical", 50, 3, 54, 3))
sketch2.addConstraint(Sketcher.Constraint("Vertical", 52, 3, 56, 3))
sketch2.addConstraint(Sketcher.Constraint("Vertical", 54, 3, 58, 3))
sketch2.addConstraint(Sketcher.Constraint("Vertical", 56, 3, 60, 3))
sketch2.addConstraint(Sketcher.Constraint("Vertical", 20, 3, 66, 3))
sketch2.addConstraint(Sketcher.Constraint("Vertical", 3, 3, 68, 3))
sketch2.addConstraint(Sketcher.Constraint("Diameter", 0, Q("3 mm")))
sketch2.addConstraint(Sketcher.Constraint("DistanceX", 62, 1, 62, 2, Q("29 mm")))
sketch2.addConstraint(Sketcher.Constraint("DistanceY", 61, 1, 61, 2, Q("22 mm")))
sketch2.addConstraint(Sketcher.Constraint("Radius", 46, Q("1.17314 mm")))
sketch2.addConstraint(Sketcher.Constraint("Radius", 18, Q("1.297312 mm")))
sketch2.addConstraint(Sketcher.Constraint("Radius", 38, Q("1.170736 mm")))
sketch2.addConstraint(Sketcher.Constraint("Radius", 66, Q("1.899506 mm")))
sketch2.addConstraint(Sketcher.Constraint("DistanceX", 37, 2, 37, 1, Q("38.31225 mm")))
sketch2.addConstraint(Sketcher.Constraint("DistanceX", 45, 1, 45, 2, Q("56.513042 mm")))
sketch2.addConstraint(Sketcher.Constraint("DistanceY", 17, 2, 17, 1, Q("68.70524 mm")))
sketch2.addConstraint(Sketcher.Constraint("DistanceY", 41, 1, 41, 2, Q("3.018311 mm")))
sketch2.addConstraint(Sketcher.Constraint("DistanceX", 42, 1, 42, 2, Q("19.920516 mm")))
sketch2.addConstraint(Sketcher.Constraint("DistanceX", 65, 2, 65, 1, Q("11.865615 mm")))
sketch2.addConstraint(Sketcher.Constraint("DistanceX", -1, 1, 1, 3, Q("7.303151 mm")))
sketch2.addConstraint(Sketcher.Constraint("DistanceX", 10, 3, -1, 1, Q("55.618759 mm")))
sketch2.addConstraint(Sketcher.Constraint("DistanceY", 11, 3, -1, 1, Q("51.192829 mm")))
sketch2.addConstraint(Sketcher.Constraint("DistanceY", -1, 1, 13, 3, Q("2.227171 mm")))
sketch2.addConstraint(Sketcher.Constraint("DistanceY", -1, 1, 20, 3, Q("34.422262 mm")))
sketch2.addConstraint(Sketcher.Constraint("DistanceX", 22, 3, -1, 1, Q("30.67087 mm")))
sketch2.addConstraint(Sketcher.Constraint("DistanceX", 26, 3, -1, 1, Q("36.67087 mm")))
sketch2.addConstraint(Sketcher.Constraint("DistanceX", 30, 3, -1, 1, Q("42.67087 mm")))
sketch2.addConstraint(Sketcher.Constraint("DistanceX", 34, 3, -1, 1, Q("48.67087 mm")))
sketch2.addConstraint(Sketcher.Constraint("DistanceY", 46, 3, -1, 1, Q("41.098018 mm")))
sketch2.addConstraint(Sketcher.Constraint("DistanceY", 58, 3, -1, 1, Q("12.67115 mm")))
sketch2.addConstraint(Sketcher.Constraint("DistanceX", 61, 2, -1, 1, Q("5.516739 mm")))
sketch2.addConstraint(Sketcher.Constraint("DistanceY", -1, 1, 65, 2, Q("51.824272 mm")))
sketch2.addConstraint(Sketcher.Constraint("DistanceX", 0, 3, -1, 1, Q("131.256523 mm")))
sketch2.addConstraint(Sketcher.Constraint("DistanceY", -1, 1, 0, 3, Q("69.515827 mm")))
sketch2.addConstraint(Sketcher.Constraint("DistanceX", 4, 3, -1, 1, Q("122.332492 mm")))
sketch2.addConstraint(Sketcher.Constraint("DistanceX", 5, 3, -1, 1, Q("1.623456 mm")))
sketch2.addConstraint(Sketcher.Constraint("DistanceX", 8, 3, -1, 1, Q("23.238564 mm")))
sketch2.addConstraint(Sketcher.Constraint("DistanceY", -1, 1, 8, 3, Q("16.512078 mm")))
sketch2.addConstraint(Sketcher.Constraint("DistanceX", 9, 3, -1, 1, Q("55.491044 mm")))
sketch2.addConstraint(Sketcher.Constraint("DistanceY", -1, 1, 9, 3, Q("46.437146 mm")))
sketch2.addConstraint(Sketcher.Constraint("DistanceX", 11, 3, -1, 1, Q("70.912492 mm")))
sketch2.addConstraint(Sketcher.Constraint("DistanceX", 15, 3, -1, 1, Q("104.144552 mm")))
sketch2.addConstraint(Sketcher.Constraint("DistanceY", -1, 1, 15, 3, Q("51.392694 mm")))
sketch2.addConstraint(Sketcher.Constraint("DistanceX", 16, 3, -1, 1, Q("87.673176 mm")))
sketch2.addConstraint(Sketcher.Constraint("DistanceX", 38, 3, -1, 1, Q("115.769074 mm")))
sketch2.addConstraint(Sketcher.Constraint("DistanceX", 46, 3, -1, 1, Q("68.521094 mm")))
sketch2.addConstraint(Sketcher.Constraint("DistanceY", 50, 3, -1, 1, Q("31.622396 mm")))
sketch2.addConstraint(Sketcher.Constraint("DistanceY", 54, 3, -1, 1, Q("22.146773 mm")))
sketch2.addConstraint(Sketcher.Constraint("DistanceX", 41, 2, -1, 1, Q("105.295933 mm")))
sketch2.addConstraint(Sketcher.Constraint("DistanceY", -1, 1, 41, 2, Q("36.969874 mm")))
sketch2.addConstraint(Sketcher.Constraint("DistanceY", 61, 2, -1, 1, Q("42.984236 mm")))
sketch2.setExpression("Constraints[136]", "Params.sketch2_diameter")
sketch2.setExpression("Constraints[137]", "Params.sketch2_width")
sketch2.setExpression("Constraints[138]", "Params.sketch2_height")
pocket1 = body.newObject("PartDesign::Pocket", "Pocket")
pocket1.Profile = sketch2
pocket1.setExpression("Length", "Params.pocket1_length")
pocket1.Reversed = True
doc.recompute()

fillet = body.newObject("PartDesign::Fillet", "Fillet")
fillet.Base = (pocket1, edges_at(pocket1, [(62.5, 1, -80.53), (62.5, 1, 80.53)]))
fillet.setExpression("Radius", "Params.fillet_radius")

doc.recompute()
